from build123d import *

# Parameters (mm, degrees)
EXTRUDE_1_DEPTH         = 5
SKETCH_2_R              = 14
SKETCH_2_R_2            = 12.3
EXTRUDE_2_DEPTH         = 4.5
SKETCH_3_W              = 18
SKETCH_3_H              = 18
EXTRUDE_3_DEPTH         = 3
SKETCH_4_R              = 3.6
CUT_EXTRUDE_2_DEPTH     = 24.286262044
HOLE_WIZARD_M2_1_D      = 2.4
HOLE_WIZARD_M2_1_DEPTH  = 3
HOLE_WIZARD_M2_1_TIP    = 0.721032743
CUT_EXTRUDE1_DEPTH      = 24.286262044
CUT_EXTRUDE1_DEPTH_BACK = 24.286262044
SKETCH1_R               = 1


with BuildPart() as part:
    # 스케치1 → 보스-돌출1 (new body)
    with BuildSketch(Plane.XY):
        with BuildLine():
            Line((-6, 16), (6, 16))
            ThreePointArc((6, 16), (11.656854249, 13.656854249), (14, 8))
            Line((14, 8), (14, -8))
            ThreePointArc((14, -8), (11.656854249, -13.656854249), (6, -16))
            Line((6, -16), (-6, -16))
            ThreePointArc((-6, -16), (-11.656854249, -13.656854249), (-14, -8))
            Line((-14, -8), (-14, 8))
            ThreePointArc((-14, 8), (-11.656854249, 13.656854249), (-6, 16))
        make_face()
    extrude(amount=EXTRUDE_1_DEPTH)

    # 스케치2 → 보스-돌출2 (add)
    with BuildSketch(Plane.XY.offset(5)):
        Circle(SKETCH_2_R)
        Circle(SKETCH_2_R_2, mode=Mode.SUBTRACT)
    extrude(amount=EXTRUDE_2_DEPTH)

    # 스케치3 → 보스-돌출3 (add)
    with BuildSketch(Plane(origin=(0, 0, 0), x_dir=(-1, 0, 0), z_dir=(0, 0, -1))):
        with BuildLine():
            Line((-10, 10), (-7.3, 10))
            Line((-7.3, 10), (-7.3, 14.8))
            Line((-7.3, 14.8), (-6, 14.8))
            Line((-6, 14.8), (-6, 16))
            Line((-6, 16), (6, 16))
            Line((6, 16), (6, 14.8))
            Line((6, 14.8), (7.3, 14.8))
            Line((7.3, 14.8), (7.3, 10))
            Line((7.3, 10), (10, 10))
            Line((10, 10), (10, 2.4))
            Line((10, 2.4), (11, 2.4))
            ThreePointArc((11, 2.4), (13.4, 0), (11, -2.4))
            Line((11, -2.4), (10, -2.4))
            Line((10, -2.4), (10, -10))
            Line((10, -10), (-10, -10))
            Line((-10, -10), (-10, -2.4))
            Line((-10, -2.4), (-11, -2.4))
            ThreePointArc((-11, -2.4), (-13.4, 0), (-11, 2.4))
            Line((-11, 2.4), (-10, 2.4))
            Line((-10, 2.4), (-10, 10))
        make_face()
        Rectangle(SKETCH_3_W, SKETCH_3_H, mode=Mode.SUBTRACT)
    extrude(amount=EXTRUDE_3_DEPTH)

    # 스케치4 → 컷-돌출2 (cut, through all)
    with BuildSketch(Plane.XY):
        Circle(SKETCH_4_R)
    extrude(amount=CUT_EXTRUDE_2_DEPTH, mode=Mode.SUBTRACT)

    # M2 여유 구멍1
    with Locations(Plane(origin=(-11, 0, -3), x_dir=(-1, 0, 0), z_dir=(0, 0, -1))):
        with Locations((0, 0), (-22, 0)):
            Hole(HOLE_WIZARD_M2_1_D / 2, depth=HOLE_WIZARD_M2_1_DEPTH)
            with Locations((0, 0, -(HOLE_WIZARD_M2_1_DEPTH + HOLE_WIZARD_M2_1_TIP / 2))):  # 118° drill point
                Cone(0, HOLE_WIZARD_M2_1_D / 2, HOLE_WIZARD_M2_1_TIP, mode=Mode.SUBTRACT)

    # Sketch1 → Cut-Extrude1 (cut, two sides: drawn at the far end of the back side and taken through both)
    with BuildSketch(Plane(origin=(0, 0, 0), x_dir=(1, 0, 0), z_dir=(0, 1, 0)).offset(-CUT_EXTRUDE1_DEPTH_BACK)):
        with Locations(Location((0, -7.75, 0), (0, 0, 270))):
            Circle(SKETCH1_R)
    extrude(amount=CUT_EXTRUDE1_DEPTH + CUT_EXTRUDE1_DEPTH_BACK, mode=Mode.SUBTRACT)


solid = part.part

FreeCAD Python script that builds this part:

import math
import FreeCAD as App
import Part
import Sketcher
from FreeCAD import Vector
Q = App.Units.Quantity


def add_polygon(sketch, points):
    """Adds a closed chain of lines whose ends are joined by coincident constraints."""
    first, n = sketch.GeometryCount, len(points)
    for a, b in zip(points, points[1:] + points[:1]):
        sketch.addGeometry(Part.LineSegment(App.Vector(*a, 0), App.Vector(*b, 0)), False)
    for i in range(n):
        sketch.addConstraint(Sketcher.Constraint("Coincident", first + i, 2, first + (i + 1) % n, 1))

doc = App.newDocument("Part")
params = doc.addObject("Spreadsheet::Sheet", "Params")
for row, (alias, value) in enumerate([
    ("sketch1_radius", "8 mm"),
    ("sketch1_width", "12 mm"),
    ("sketch1_height", "16 mm"),
    ("pad1_length", "5 mm"),
    ("sketch2_diameter", "28 mm"),
    ("sketch2_diameter2", "24.6 mm"),
    ("pad2_length", "4.5 mm"),
    ("sketch3_radius", "2.4 mm"),
    ("sketch3_width", "1 mm"),
    ("sketch3_width2", "20 mm"),
    ("sketch3_width3", "12 mm"),
    ("sketch3_width4", "18 mm"),
    ("pad3_length", "3 mm"),
    ("sketch4_diameter", "7.2 mm"),
    ("sketch5_diameter", "2.4 mm"),
    ("hole_diameter", "2.4 mm"),
    ("hole_depth", "3 mm"),
    ("sketch6_diameter", "2 mm"),
], start=1):
    params.set(f"A{row}", alias)
    params.set(f"B{row}", "=" + value)
    params.setAlias(f"B{row}", alias)

body = doc.addObject("PartDesign::Body", "Body")

# Sketch on XY plane
sketch1 = body.newObject("Sketcher::SketchObject", "Sketch")
sketch1.AttachmentSupport = (doc.getObject("XY_Plane"), [""])
sketch1.MapMode = "FlatFace"
sketch1.addGeometry([
    Part.LineSegment(Vector(6, 16, 0), Vector(-6, 16, 0)),  # 0
    Part.ArcOfCircle(Part.Circle(Vector(-6, 8, 0), Vector(0, 0, 1), 8), math.radians(90), math.radians(180)),  # 1
    Part.LineSegment(Vector(-14, 8, 0), Vector(-14, -8, 0)),  # 2
    Part.ArcOfCircle(Part.Circle(Vector(-6, -8, 0), Vector(0, 0, 1), 8), math.radians(-180), math.radians(-90)),  # 3
    Part.LineSegment(Vector(-6, -16, 0), Vector(6, -16, 0)),  # 4
    Part.ArcOfCircle(Part.Circle(Vector(6, -8, 0), Vector(0, 0, 1), 8), math.radians(-90), math.radians(0)),  # 5
    Part.LineSegment(Vector(14, -8, 0), Vector(14, 8, 0)),  # 6
    Part.ArcOfCircle(Part.Circle(Vector(6, 8, 0), Vector(0, 0, 1), 8), math.radians(0), math.radians(90)),  # 7
], False)
sketch1.addConstraint([
    Sketcher.Constraint("Tangent", 0, 2, 1, 1),
    Sketcher.Constraint("Tangent", 1, 2, 2, 1),
    Sketcher.Constraint("Tangent", 2, 2, 3, 1),
    Sketcher.Constraint("Tangent", 3, 2, 4, 1),
    Sketcher.Constraint("Tangent", 4, 2, 5, 1),
    Sketcher.Constraint("Tangent", 5, 2, 6, 1),
    Sketcher.Constraint("Tangent", 6, 2, 7, 1),
    Sketcher.Constraint("Tangent", 7, 2, 0, 1),
    Sketcher.Constraint("Horizontal", 0),
    Sketcher.Constraint("Vertical", 2),
    Sketcher.Constraint("Horizontal", 4),
    Sketcher.Constraint("Vertical", 6),
    Sketcher.Constraint("Equal", 1, 3),
    Sketcher.Constraint("Equal", 3, 5),
    Sketcher.Constraint("Equal", 5, 7),
    Sketcher.Constraint("Symmetric", 1, 3, 5, 3, -1, 1),
    Sketcher.Constraint("Radius", 1, Q("8 mm")),
    Sketcher.Constraint("DistanceX", 0, 2, 0, 1, Q("12 mm")),
    Sketcher.Constraint("DistanceY", 2, 2, 2, 1, Q("16 mm")),
])
sketch1.setExpression("Constraints[16]", "Params.sketch1_radius")
sketch1.setExpression("Constraints[17]", "Params.sketch1_width")
sketch1.setExpression("Constraints[18]", "Params.sketch1_height")
pad1 = body.newObject("PartDesign::Pad", "Pad")
pad1.Profile = sketch1
pad1.setExpression("Length", "Params.pad1_length")

# Sketch on XY plane
sketch2 = body.newObject("Sketcher::SketchObject", "Sketch001")
sketch2.AttachmentSupport = (doc.getObject("XY_Plane"), [""])
sketch2.MapMode = "FlatFace"
sketch2.AttachmentOffset = App.Placement(Vector(0, 0, 5), App.Rotation())
sketch2.addGeometry([
    Part.Circle(Vector(0, 0, 0), Vector(0, 0, 1), 14),
    Part.Circle(Vector(0, 0, 0), Vector(0, 0, 1), 12),
], False)
sketch2.addConstraint([
    Sketcher.Constraint("Coincident", 0, 3, -1, 1),
    Sketcher.Constraint("Coincident", 1, 3, -1, 1),
    Sketcher.Constraint("Diameter", 0, Q("28 mm")),
    Sketcher.Constraint("Diameter", 1, Q("24.6 mm")),
])
sketch2.setExpression("Constraints[2]", "Params.sketch2_diameter")
sketch2.setExpression("Constraints[3]", "Params.sketch2_diameter2")
pad2 = body.newObject("PartDesign::Pad", "Pad001")
pad2.Profile = sketch2
pad2.setExpression("Length", "Params.pad2_length")

# Sketch on XY plane
sketch3 = body.newObject("Sketcher::SketchObject", "Sketch002")
sketch3.AttachmentSupport = (doc.getObject("XY_Plane"), [""])
sketch3.MapMode = "FlatFace"
sketch3.addGeometry(Part.LineSegment(Vector(7.3, 10, 0), Vector(10, 10, 0)), False)  # 0
sketch3.addGeometry(Part.LineSegment(Vector(10, 10, 0), Vector(10, 2.4, 0)), False)  # 1
sketch3.addGeometry(Part.LineSegment(Vector(10, 2.4, 0), Vector(11, 2.4, 0)), False)  # 2
sketch3.addGeometry(Part.ArcOfCircle(Part.Circle(Vector(11, 0, 0), Vector(0, 0, 1), 2.4), math.radians(-90), math.radians(90)), False)  # 3
sketch3.addGeometry(Part.LineSegment(Vector(11, -2.4, 0), Vector(10, -2.4, 0)), False)  # 4
sketch3.addGeometry(Part.LineSegment(Vector(10, -2.4, 0), Vector(10, -10, 0)), False)  # 5
sketch3.addGeometry(Part.LineSegment(Vector(10, -10, 0), Vector(-10, -10, 0)), False)  # 6
sketch3.addGeometry(Part.LineSegment(Vector(-10, -10, 0), Vector(-10, -2.4, 0)), False)  # 7
sketch3.addGeometry(Part.LineSegment(Vector(-10, -2.4, 0), Vector(-11, -2.4, 0)), False)  # 8
sketch3.addGeometry(Part.ArcOfCircle(Part.Circle(Vector(-11, 0, 0), Vector(0, 0, 1), 2.4), math.radians(90), math.radians(270)), False)  # 9
sketch3.addGeometry(Part.LineSegment(Vector(-11, 2.4, 0), Vector(-10, 2.4, 0)), False)  # 10
sketch3.addGeometry(Part.LineSegment(Vector(-10, 2.4, 0), Vector(-10, 10, 0)), False)  # 11
sketch3.addGeometry(Part.LineSegment(Vector(-10, 10, 0), Vector(-7.3, 10, 0)), False)  # 12
sketch3.addGeometry(Part.LineSegment(Vector(-7.3, 10, 0), Vector(-7.3, 14.8, 0)), False)  # 13
sketch3.addGeometry(Part.LineSegment(Vector(-7.3, 14.8, 0), Vector(-6, 14.8, 0)), False)  # 14
sketch3.addGeometry(Part.LineSegment(Vector(-6, 14.8, 0), Vector(-6, 16, 0)), False)  # 15
sketch3.addGeometry(Part.LineSegment(Vector(-6, 16, 0), Vector(6, 16, 0)), False)  # 16
sketch3.addGeometry(Part.LineSegment(Vector(6, 16, 0), Vector(6, 14.8, 0)), False)  # 17
sketch3.addGeometry(Part.LineSegment(Vector(6, 14.8, 0), Vector(7.3, 14.8, 0)), False)  # 18
sketch3.addGeometry(Part.LineSegment(Vector(7.3, 14.8, 0), Vector(7.3, 10, 0)), False)  # 19
add_polygon(sketch3, [(9, -9), (9, 9), (-9, 9), (-9, -9)])  # lines 20-23
sketch3.addConstraint([
    Sketcher.Constraint("Coincident", 0, 2, 1, 1),
    Sketcher.Constraint("Coincident", 1, 2, 2, 1),
    Sketcher.Constraint("Tangent", 2, 2, 3, 2),
    Sketcher.Constraint("Tangent", 3, 1, 4, 1),
    Sketcher.Constraint("Coincident", 4, 2, 5, 1),
    Sketcher.Constraint("Coincident", 5, 2, 6, 1),
    Sketcher.Constraint("Coincident", 6, 2, 7, 1),
    Sketcher.Constraint("Coincident", 7, 2, 8, 1),
    Sketcher.Constraint("Tangent", 8, 2, 9, 2),
    Sketcher.Constraint("Tangent", 9, 1, 10, 1),
    Sketcher.Constraint("Coincident", 10, 2, 11, 1),
    Sketcher.Constraint("Coincident", 11, 2, 12, 1),
    Sketcher.Constraint("Coincident", 12, 2, 13, 1),
    Sketcher.Constraint("Coincident", 13, 2, 14, 1),
    Sketcher.Constraint("Coincident", 14, 2, 15, 1),
    Sketcher.Constraint("Coincident", 15, 2, 16, 1),
    Sketcher.Constraint("Coincident", 16, 2, 17, 1),
    Sketcher.Constraint("Coincident", 17, 2, 18, 1),
    Sketcher.Constraint("Coincident", 18, 2, 19, 1),
    Sketcher.Constraint("Coincident", 19, 2, 0, 1),
    Sketcher.Constraint("Horizontal", 0),
    Sketcher.Constraint("Vertical", 1),
    Sketcher.Constraint("Horizontal", 2),
    Sketcher.Constraint("Horizontal", 4),
    Sketcher.Constraint("Vertical", 5),
    Sketcher.Constraint("Horizontal", 6),
    Sketcher.Constraint("Vertical", 7),
    Sketcher.Constraint("Horizontal", 8),
    Sketcher.Constraint("Horizontal", 10),
    Sketcher.Constraint("Vertical", 11),
    Sketcher.Constraint("Horizontal", 12),
    Sketcher.Constraint("Vertical", 13),
    Sketcher.Constraint("Horizontal", 14),
    Sketcher.Constraint("Vertical", 15),
    Sketcher.Constraint("Horizontal", 16),
    Sketcher.Constraint("Vertical", 17),
    Sketcher.Constraint("Horizontal", 18),
    Sketcher.Constraint("Vertical", 19),
    Sketcher.Constraint("Vertical", 20),
    Sketcher.Constraint("Horizontal", 21),
    Sketcher.Constraint("Vertical", 22),
    Sketcher.Constraint("Horizontal", 23),
    Sketcher.Constraint("Equal", 3, 9),
    Sketcher.Constraint("Symmetric", 3, 3, 9, 3, -1, 1),
    Sketcher.Constraint("Symmetric", 0, 2, 6, 2, -1, 1),
    Sketcher.Constraint("Symmetric", 5, 2, 11, 2, -1, 1),
    Sketcher.Constraint("Symmetric", 20, 2, 22, 2, -1, 1),
    Sketcher.Constraint("Symmetric", 4, 2, 7, 2, -2),
    Sketcher.Constraint("Symmetric", 14, 2, 17, 2, -2),
    Sketcher.Constraint("Equal", 0, 12),
    Sketcher.Constraint("Equal", 23, 20),
    Sketcher.Constraint("Radius", 3, Q("2.4 mm")),
    Sketcher.Constraint("DistanceX", 2, 1, 2, 2, Q("1 mm")),
    Sketcher.Constraint("DistanceX", 6, 2, 6, 1, Q("20 mm")),
    Sketcher.Constraint("DistanceX", 16, 1, 16, 2, Q("12 mm")),
    Sketcher.Constraint("DistanceX", 21, 2, 21, 1, Q("18 mm")),
    Sketcher.Constraint("DistanceX", 0, 1, 0, 2, Q("2.7 mm")),
    Sketcher.Constraint("DistanceY", 1, 2, 1, 1, Q("7.6 mm")),
    Sketcher.Constraint("DistanceY", 13, 1, 13, 2, Q("4.8 mm")),
    Sketcher.Constraint("DistanceY", 15, 1, 15, 2, Q("1.2 mm")),
])
sketch3.setExpression("Constraints[55]", "Params.sketch3_radius")
sketch3.setExpression("Constraints[56]", "Params.sketch3_width")
sketch3.setExpression("Constraints[57]", "Params.sketch3_width2")
sketch3.setExpression("Constraints[58]", "Params.sketch3_width3")
sketch3.setExpression("Constraints[59]", "Params.sketch3_width4")
pad3 = body.newObject("PartDesign::Pad", "Pad002")
pad3.Profile = sketch3
pad3.setExpression("Length", "Params.pad3_length")
pad3.Reversed = True

# Sketch on XY plane
sketch4 = body.newObject("Sketcher::SketchObject", "Sketch003")
sketch4.AttachmentSupport = (doc.getObject("XY_Plane"), [""])
sketch4.MapMode = "FlatFace"
sketch4.addGeometry(Part.Circle(Vector(0, 0, 0), Vector(0, 0, 1), 3.6), False)
sketch4.addConstraint([
    Sketcher.Constraint("Coincident", 0, 3, -1, 1),
    Sketcher.Constraint("Diameter", 0, Q("7.2 mm")),
])
sketch4.setExpression("Constraints[1]", "Params.sketch4_diameter")
pocket1 = body.newObject("PartDesign::Pocket", "Pocket")
pocket1.Profile = sketch4
pocket1.Type = "ThroughAll"
pocket1.Reversed = True

# Sketch on XY plane
sketch5 = body.newObject("Sketcher::SketchObject", "Sketch004")
sketch5.AttachmentSupport = (doc.getObject("XY_Plane"), [""])
sketch5.MapMode = "FlatFace"
sketch5.AttachmentOffset = App.Placement(Vector(0, 0, -3), App.Rotation())
sketch5.addGeometry([
    Part.Circle(Vector(-11, 0, 0), Vector(0, 0, 1), 1.2),
    Part.Circle(Vector(11, 0, 0), Vector(0, 0, 1), 1.2),
], False)
sketch5.addConstraint([
    Sketcher.Constraint("Equal", 0, 1),
    Sketcher.Constraint("Symmetric", 0, 3, 1, 3, -1, 1),
    Sketcher.Constraint("PointOnObject", 0, 3, -1),
    Sketcher.Constraint("Diameter", 0, Q("2.4 mm")),
    Sketcher.Constraint("DistanceX", 0, 3, -1, 1, Q("11 mm")),
])
sketch5.setExpression("Constraints[3]", "Params.sketch5_diameter")
doc.recompute()
hole = body.newObject("PartDesign::Hole", "Hole")
hole.Profile = sketch5
hole.ThreadType = "None"
hole.setExpression("Diameter", "Params.hole_diameter")
hole.DepthType = "Dimension"
hole.setExpression("Depth", "Params.hole_depth")
hole.DrillPoint = "Angled"
hole.DrillPointAngle = 118
hole.Reversed = True

# Sketch on XZ plane
sketch6 = body.newObject("Sketcher::SketchObject", "Sketch005")
sketch6.AttachmentSupport = (doc.getObject("XZ_Plane"), [""])
sketch6.MapMode = "FlatFace"
sketch6.addGeometry(Part.Circle(Vector(0, 7.8, 0), Vector(0, 0, 1), 1), False)
sketch6.addConstraint([
    Sketcher.Constraint("PointOnObject", 0, 3, -2),
    Sketcher.Constraint("Diameter", 0, Q("2 mm")),
    Sketcher.Constraint("DistanceY", -1, 1, 0, 3, Q("7.75 mm")),
])
sketch6.setExpression("Constraints[1]", "Params.sketch6_diameter")
pocket2 = body.newObject("PartDesign::Pocket", "Pocket001")
pocket2.Profile = sketch6
pocket2.Type = "ThroughAll"
pocket2.Midplane = True

doc.recompute()
